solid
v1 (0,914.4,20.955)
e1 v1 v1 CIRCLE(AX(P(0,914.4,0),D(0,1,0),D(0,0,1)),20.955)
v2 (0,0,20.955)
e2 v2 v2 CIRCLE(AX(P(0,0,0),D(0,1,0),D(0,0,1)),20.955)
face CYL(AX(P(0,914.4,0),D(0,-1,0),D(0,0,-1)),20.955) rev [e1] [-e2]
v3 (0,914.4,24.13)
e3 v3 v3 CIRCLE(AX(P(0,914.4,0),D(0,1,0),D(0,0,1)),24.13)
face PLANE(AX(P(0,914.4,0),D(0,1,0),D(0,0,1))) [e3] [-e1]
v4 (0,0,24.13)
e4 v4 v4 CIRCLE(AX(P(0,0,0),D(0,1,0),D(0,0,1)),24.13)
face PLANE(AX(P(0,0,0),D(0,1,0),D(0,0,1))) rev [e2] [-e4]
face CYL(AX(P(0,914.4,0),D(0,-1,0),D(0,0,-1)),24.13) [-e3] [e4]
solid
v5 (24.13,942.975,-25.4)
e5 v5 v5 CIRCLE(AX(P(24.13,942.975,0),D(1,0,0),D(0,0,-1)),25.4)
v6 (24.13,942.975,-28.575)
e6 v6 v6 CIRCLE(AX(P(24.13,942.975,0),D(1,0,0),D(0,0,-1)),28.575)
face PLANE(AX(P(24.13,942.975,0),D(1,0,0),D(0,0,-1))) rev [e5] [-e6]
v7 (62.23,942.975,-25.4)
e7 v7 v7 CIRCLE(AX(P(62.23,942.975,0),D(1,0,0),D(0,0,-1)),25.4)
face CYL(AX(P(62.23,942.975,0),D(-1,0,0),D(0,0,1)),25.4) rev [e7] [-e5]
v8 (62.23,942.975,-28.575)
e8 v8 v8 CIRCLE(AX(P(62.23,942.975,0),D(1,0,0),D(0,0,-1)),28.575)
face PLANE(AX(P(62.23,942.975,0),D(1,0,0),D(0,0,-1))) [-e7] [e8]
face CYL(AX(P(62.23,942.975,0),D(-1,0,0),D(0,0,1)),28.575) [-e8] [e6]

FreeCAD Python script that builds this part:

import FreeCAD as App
import Part
import Sketcher

V = App.Vector
Q = App.Units.Quantity

doc = App.newDocument("Part")
params = doc.addObject("Spreadsheet::Sheet", "Params")
for row, (alias, value) in enumerate([
    ("sketch1_diameter", "1.9 in"),
    ("sketch1_diameter2", "1.65 in"),
    ("pad1_length", "36 in"),
    ("sketch2_diameter", "2 in"),
    ("sketch2_diameter2", "2.25 in"),
    ("pad2_length", "1.5 in"),
], start=1):
    params.set(f"A{row}", alias)
    params.set(f"B{row}", "=" + value)
    params.setAlias(f"B{row}", alias)

body = doc.addObject("PartDesign::Body", "Body")

sketch1 = body.newObject("Sketcher::SketchObject", "Sketch")
sketch1.AttachmentSupport = (doc.getObject("XZ_Plane"), [""])
sketch1.MapMode = "FlatFace"
sketch1.addGeometry([
    Part.Circle(V(0, 0, 0), V(0, 0, 1), 24),
    Part.Circle(V(0, 0, 0), V(0, 0, 1), 21),
], False)
sketch1.addConstraint([
    Sketcher.Constraint("Coincident", 0, 3, -1, 1),
    Sketcher.Constraint("Coincident", 1, 3, -1, 1),
    Sketcher.Constraint("Diameter", 0, Q("1.9 in")),
    Sketcher.Constraint("Diameter", 1, Q("1.65 in")),
])
sketch1.setExpression("Constraints[2]", "Params.sketch1_diameter")
sketch1.setExpression("Constraints[3]", "Params.sketch1_diameter2")
pad1 = body.newObject("PartDesign::Pad", "Pad")
pad1.Profile = sketch1
pad1.setExpression("Length", "Params.pad1_length")
pad1.Reversed = True
body2 = doc.addObject("PartDesign::Body", "Body001")

sketch2 = body2.newObject("Sketcher::SketchObject", "Sketch001")
sketch2.AttachmentSupport = (doc.getObject("YZ_Plane001"), [""])
sketch2.MapMode = "FlatFace"
sketch2.AttachmentOffset = App.Placement(V(0, 0, 0.95 * 25.4), App.Rotation())
sketch2.addGeometry([
    Part.Circle(V(943, 0, 0), V(0, 0, 1), 29),
    Part.Circle(V(943, 0, 0), V(0, 0, 1), 25),
], False)
sketch2.addConstraint([
    Sketcher.Constraint("Coincident", 1, 3, 0, 3),
    Sketcher.Constraint("PointOnObject", 0, 3, -1),
    Sketcher.Constraint("Diameter", 1, Q("2 in")),
    Sketcher.Constraint("Diameter", 0, Q("2.25 in")),
    Sketcher.Constraint("DistanceX", -1, 1, 0, 3, Q("37.125 in")),
])
sketch2.setExpression("Constraints[2]", "Params.sketch2_diameter")
sketch2.setExpression("Constraints[3]", "Params.sketch2_diameter2")
pad2 = body2.newObject("PartDesign::Pad", "Pad001")
pad2.Profile = sketch2
pad2.setExpression("Length", "Params.pad2_length")

doc.recompute()
